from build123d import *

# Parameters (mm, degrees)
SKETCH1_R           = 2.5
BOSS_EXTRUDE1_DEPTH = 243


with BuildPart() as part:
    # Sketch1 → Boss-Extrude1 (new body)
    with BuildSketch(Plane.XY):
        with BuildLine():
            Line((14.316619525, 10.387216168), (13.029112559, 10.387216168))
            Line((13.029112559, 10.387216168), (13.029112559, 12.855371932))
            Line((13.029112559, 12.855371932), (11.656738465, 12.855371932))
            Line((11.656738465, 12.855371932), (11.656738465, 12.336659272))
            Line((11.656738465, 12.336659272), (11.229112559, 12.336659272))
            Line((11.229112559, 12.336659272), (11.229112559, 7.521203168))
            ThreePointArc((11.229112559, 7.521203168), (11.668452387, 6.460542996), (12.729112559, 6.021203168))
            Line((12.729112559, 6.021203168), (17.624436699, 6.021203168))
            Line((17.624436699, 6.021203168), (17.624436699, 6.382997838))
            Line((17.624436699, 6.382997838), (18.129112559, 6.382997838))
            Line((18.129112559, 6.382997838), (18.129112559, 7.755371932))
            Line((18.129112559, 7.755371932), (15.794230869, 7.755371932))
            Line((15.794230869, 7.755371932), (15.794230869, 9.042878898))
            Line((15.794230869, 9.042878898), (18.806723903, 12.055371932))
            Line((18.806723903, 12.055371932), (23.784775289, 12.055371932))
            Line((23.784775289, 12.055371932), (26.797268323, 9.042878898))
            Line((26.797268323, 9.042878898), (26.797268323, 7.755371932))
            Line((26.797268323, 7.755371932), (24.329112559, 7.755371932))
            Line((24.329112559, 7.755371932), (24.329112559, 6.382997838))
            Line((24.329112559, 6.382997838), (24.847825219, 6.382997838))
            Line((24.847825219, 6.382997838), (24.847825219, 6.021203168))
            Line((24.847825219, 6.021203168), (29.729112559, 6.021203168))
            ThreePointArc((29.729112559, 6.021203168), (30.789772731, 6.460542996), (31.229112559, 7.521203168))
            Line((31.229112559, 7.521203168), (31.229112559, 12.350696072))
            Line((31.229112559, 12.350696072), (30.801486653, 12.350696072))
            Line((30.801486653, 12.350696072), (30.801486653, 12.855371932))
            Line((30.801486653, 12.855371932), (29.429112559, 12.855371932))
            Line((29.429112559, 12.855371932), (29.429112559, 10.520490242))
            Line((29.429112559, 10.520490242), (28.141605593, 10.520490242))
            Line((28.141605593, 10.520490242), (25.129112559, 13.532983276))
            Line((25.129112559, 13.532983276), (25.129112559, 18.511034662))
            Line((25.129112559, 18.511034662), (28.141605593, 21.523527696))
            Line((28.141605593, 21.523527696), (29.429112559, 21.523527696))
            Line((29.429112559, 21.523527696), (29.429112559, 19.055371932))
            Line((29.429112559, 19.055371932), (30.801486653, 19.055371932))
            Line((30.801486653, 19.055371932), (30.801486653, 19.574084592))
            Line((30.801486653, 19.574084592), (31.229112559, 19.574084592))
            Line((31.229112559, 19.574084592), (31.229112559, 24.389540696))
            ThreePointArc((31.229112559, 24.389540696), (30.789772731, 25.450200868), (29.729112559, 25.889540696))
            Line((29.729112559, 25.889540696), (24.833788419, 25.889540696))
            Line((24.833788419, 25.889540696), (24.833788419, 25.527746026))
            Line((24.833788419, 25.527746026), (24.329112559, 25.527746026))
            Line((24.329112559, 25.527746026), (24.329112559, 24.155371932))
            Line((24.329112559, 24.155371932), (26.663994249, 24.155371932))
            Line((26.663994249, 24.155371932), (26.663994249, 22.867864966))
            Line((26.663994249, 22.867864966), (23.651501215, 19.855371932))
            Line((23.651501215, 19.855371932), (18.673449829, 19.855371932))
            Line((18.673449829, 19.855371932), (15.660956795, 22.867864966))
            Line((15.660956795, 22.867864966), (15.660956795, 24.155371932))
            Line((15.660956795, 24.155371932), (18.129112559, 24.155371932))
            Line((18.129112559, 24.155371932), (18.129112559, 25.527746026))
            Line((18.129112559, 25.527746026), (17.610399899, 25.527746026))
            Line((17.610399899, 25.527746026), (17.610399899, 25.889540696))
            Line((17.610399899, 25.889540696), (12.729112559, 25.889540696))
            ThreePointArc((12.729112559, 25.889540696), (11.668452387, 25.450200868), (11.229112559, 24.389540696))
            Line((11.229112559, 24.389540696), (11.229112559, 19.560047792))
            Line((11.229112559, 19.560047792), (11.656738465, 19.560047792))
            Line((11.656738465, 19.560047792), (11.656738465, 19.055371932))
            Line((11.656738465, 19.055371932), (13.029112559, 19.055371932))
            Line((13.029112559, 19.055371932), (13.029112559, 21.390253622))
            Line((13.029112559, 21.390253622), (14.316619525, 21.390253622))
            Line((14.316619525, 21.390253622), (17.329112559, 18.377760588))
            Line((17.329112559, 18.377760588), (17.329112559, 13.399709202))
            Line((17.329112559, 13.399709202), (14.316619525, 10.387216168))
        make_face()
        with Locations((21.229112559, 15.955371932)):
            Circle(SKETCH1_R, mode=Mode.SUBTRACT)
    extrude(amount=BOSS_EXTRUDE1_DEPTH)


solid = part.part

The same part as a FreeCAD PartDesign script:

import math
import FreeCAD as App
import Part
import Sketcher
from FreeCAD import Vector

doc = App.newDocument("Part")
params = doc.addObject("Spreadsheet::Sheet", "Params")
for row, (alias, value) in enumerate([
    ("sketch1_diameter", "5 mm"),
    ("sketch1_radius", "1.5 mm"),
    ("pad1_length", "243 mm"),
], start=1):
    params.set(f"A{row}", alias)
    params.set(f"B{row}", "=" + value)
    params.setAlias(f"B{row}", alias)

body = doc.addObject("PartDesign::Body", "Body")

sketch1 = body.newObject("Sketcher::SketchObject", "Sketch")
sketch1.AttachmentSupport = (doc.getObject("XY_Plane"), [""])
sketch1.MapMode = "FlatFace"
sketch1.addGeometry(Part.LineSegment(Vector(14.31662, 10.387216, 0), Vector(13.029113, 10.387216, 0)), False)
sketch1.addGeometry(Part.LineSegment(Vector(13.029113, 10.387216, 0), Vector(13.029113, 12.855372, 0)), False)
sketch1.addGeometry(Part.LineSegment(Vector(13.029113, 12.855372, 0), Vector(11.656738, 12.855372, 0)), False)
sketch1.addGeometry(Part.LineSegment(Vector(11.656738, 12.855372, 0), Vector(11.656738, 12.336659, 0)), False)
sketch1.addGeometry(Part.LineSegment(Vector(11.656738, 12.336659, 0), Vector(11.229113, 12.336659, 0)), False)
sketch1.addGeometry(Part.LineSegment(Vector(11.229113, 12.336659, 0), Vector(11.229113, 7.521203, 0)), False)
sketch1.addGeometry(Part.ArcOfCircle(Part.Circle(Vector(12.729113, 7.521203, 0), Vector(0, 0, 1), 1.5), math.radians(180), math.radians(270)), False)
sketch1.addGeometry(Part.LineSegment(Vector(12.729113, 6.021203, 0), Vector(17.624437, 6.021203, 0)), False)
sketch1.addGeometry(Part.LineSegment(Vector(17.624437, 6.021203, 0), Vector(17.624437, 6.382998, 0)), False)
sketch1.addGeometry(Part.LineSegment(Vector(17.624437, 6.382998, 0), Vector(18.129113, 6.382998, 0)), False)
sketch1.addGeometry(Part.LineSegment(Vector(18.129113, 6.382998, 0), Vector(18.129113, 7.755372, 0)), False)
sketch1.addGeometry(Part.LineSegment(Vector(18.129113, 7.755372, 0), Vector(15.794231, 7.755372, 0)), False)
sketch1.addGeometry(Part.LineSegment(Vector(15.794231, 7.755372, 0), Vector(15.794231, 9.042879, 0)), False)
sketch1.addGeometry(Part.LineSegment(Vector(15.794231, 9.042879, 0), Vector(18.806724, 12.055372, 0)), False)
sketch1.addGeometry(Part.LineSegment(Vector(18.806724, 12.055372, 0), Vector(23.784775, 12.055372, 0)), False)
sketch1.addGeometry(Part.LineSegment(Vector(23.784775, 12.055372, 0), Vector(26.797268, 9.042879, 0)), False)
sketch1.addGeometry(Part.LineSegment(Vector(26.797268, 9.042879, 0), Vector(26.797268, 7.755372, 0)), False)
sketch1.addGeometry(Part.LineSegment(Vector(26.797268, 7.755372, 0), Vector(24.329113, 7.755372, 0)), False)
sketch1.addGeometry(Part.LineSegment(Vector(24.329113, 7.755372, 0), Vector(24.329113, 6.382998, 0)), False)
sketch1.addGeometry(Part.LineSegment(Vector(24.329113, 6.382998, 0), Vector(24.847825, 6.382998, 0)), False)
sketch1.addGeometry(Part.LineSegment(Vector(24.847825, 6.382998, 0), Vector(24.847825, 6.021203, 0)), False)
sketch1.addGeometry(Part.LineSegment(Vector(24.847825, 6.021203, 0), Vector(29.729113, 6.021203, 0)), False)
sketch1.addGeometry(Part.ArcOfCircle(Part.Circle(Vector(29.729113, 7.521203, 0), Vector(0, 0, 1), 1.5), math.radians(-90), math.radians(0)), False)
sketch1.addGeometry(Part.LineSegment(Vector(31.229113, 7.521203, 0), Vector(31.229113, 12.350696, 0)), False)
sketch1.addGeometry(Part.LineSegment(Vector(31.229113, 12.350696, 0), Vector(30.801487, 12.350696, 0)), False)
sketch1.addGeometry(Part.LineSegment(Vector(30.801487, 12.350696, 0), Vector(30.801487, 12.855372, 0)), False)
sketch1.addGeometry(Part.LineSegment(Vector(30.801487, 12.855372, 0), Vector(29.429113, 12.855372, 0)), False)
sketch1.addGeometry(Part.LineSegment(Vector(29.429113, 12.855372, 0), Vector(29.429113, 10.52049, 0)), False)
sketch1.addGeometry(Part.LineSegment(Vector(29.429113, 10.52049, 0), Vector(28.141606, 10.52049, 0)), False)
sketch1.addGeometry(Part.LineSegment(Vector(28.141606, 10.52049, 0), Vector(25.129113, 13.532983, 0)), False)
sketch1.addGeometry(Part.LineSegment(Vector(25.129113, 13.532983, 0), Vector(25.129113, 18.511035, 0)), False)
sketch1.addGeometry(Part.LineSegment(Vector(25.129113, 18.511035, 0), Vector(28.141606, 21.523528, 0)), False)
sketch1.addGeometry(Part.LineSegment(Vector(28.141606, 21.523528, 0), Vector(29.429113, 21.523528, 0)), False)
sketch1.addGeometry(Part.LineSegment(Vector(29.429113, 21.523528, 0), Vector(29.429113, 19.055372, 0)), False)
sketch1.addGeometry(Part.LineSegment(Vector(29.429113, 19.055372, 0), Vector(30.801487, 19.055372, 0)), False)
sketch1.addGeometry(Part.LineSegment(Vector(30.801487, 19.055372, 0), Vector(30.801487, 19.574085, 0)), False)
sketch1.addGeometry(Part.LineSegment(Vector(30.801487, 19.574085, 0), Vector(31.229113, 19.574085, 0)), False)
sketch1.addGeometry(Part.LineSegment(Vector(31.229113, 19.574085, 0), Vector(31.229113, 24.389541, 0)), False)
sketch1.addGeometry(Part.ArcOfCircle(Part.Circle(Vector(29.729113, 24.389541, 0), Vector(0, 0, 1), 1.5), math.radians(0), math.radians(90)), False)
sketch1.addGeometry(Part.LineSegment(Vector(29.729113, 25.889541, 0), Vector(24.833788, 25.889541, 0)), False)
sketch1.addGeometry(Part.LineSegment(Vector(24.833788, 25.889541, 0), Vector(24.833788, 25.527746, 0)), False)
sketch1.addGeometry(Part.LineSegment(Vector(24.833788, 25.527746, 0), Vector(24.329113, 25.527746, 0)), False)
sketch1.addGeometry(Part.LineSegment(Vector(24.329113, 25.527746, 0), Vector(24.329113, 24.155372, 0)), False)
sketch1.addGeometry(Part.LineSegment(Vector(24.329113, 24.155372, 0), Vector(26.663994, 24.155372, 0)), False)
sketch1.addGeometry(Part.LineSegment(Vector(26.663994, 24.155372, 0), Vector(26.663994, 22.867865, 0)), False)
sketch1.addGeometry(Part.LineSegment(Vector(26.663994, 22.867865, 0), Vector(23.651501, 19.855372, 0)), False)
sketch1.addGeometry(Part.LineSegment(Vector(23.651501, 19.855372, 0), Vector(18.67345, 19.855372, 0)), False)
sketch1.addGeometry(Part.LineSegment(Vector(18.67345, 19.855372, 0), Vector(15.660957, 22.867865, 0)), False)
sketch1.addGeometry(Part.LineSegment(Vector(15.660957, 22.867865, 0), Vector(15.660957, 24.155372, 0)), False)
sketch1.addGeometry(Part.LineSegment(Vector(15.660957, 24.155372, 0), Vector(18.129113, 24.155372, 0)), False)
sketch1.addGeometry(Part.LineSegment(Vector(18.129113, 24.155372, 0), Vector(18.129113, 25.527746, 0)), False)
sketch1.addGeometry(Part.LineSegment(Vector(18.129113, 25.527746, 0), Vector(17.6104, 25.527746, 0)), False)
sketch1.addGeometry(Part.LineSegment(Vector(17.6104, 25.527746, 0), Vector(17.6104, 25.889541, 0)), False)
sketch1.addGeometry(Part.LineSegment(Vector(17.6104, 25.889541, 0), Vector(12.729113, 25.889541, 0)), False)
sketch1.addGeometry(Part.ArcOfCircle(Part.Circle(Vector(12.729113, 24.389541, 0), Vector(0, 0, 1), 1.5), math.radians(90), math.radians(180)), False)
sketch1.addGeometry(Part.LineSegment(Vector(11.229113, 24.389541, 0), Vector(11.229113, 19.560048, 0)), False)
sketch1.addGeometry(Part.LineSegment(Vector(11.229113, 19.560048, 0), Vector(11.656738, 19.560048, 0)), False)
sketch1.addGeometry(Part.LineSegment(Vector(11.656738, 19.560048, 0), Vector(11.656738, 19.055372, 0)), False)
sketch1.addGeometry(Part.LineSegment(Vector(11.656738, 19.055372, 0), Vector(13.029113, 19.055372, 0)), False)
sketch1.addGeometry(Part.LineSegment(Vector(13.029113, 19.055372, 0), Vector(13.029113, 21.390254, 0)), False)
sketch1.addGeometry(Part.LineSegment(Vector(13.029113, 21.390254, 0), Vector(14.31662, 21.390254, 0)), False)
sketch1.addGeometry(Part.LineSegment(Vector(14.31662, 21.390254, 0), Vector(17.329113, 18.377761, 0)), False)
sketch1.addGeometry(Part.LineSegment(Vector(17.329113, 18.377761, 0), Vector(17.329113, 13.399709, 0)), False)
sketch1.addGeometry(Part.LineSegment(Vector(17.329113, 13.399709, 0), Vector(14.31662, 10.387216, 0)), False)
sketch1.addGeometry(Part.Circle(Vector(21.229113, 15.955372, 0), Vector(0, 0, 1), 2.5), False)
sketch1.addConstraint(Sketcher.Constraint("Coincident", 0, 2, 1, 1))
sketch1.addConstraint(Sketcher.Constraint("Coincident", 1, 2, 2, 1))
sketch1.addConstraint(Sketcher.Constraint("Coincident", 2, 2, 3, 1))
sketch1.addConstraint(Sketcher.Constraint("Coincident", 3, 2, 4, 1))
sketch1.addConstraint(Sketcher.Constraint("Coincident", 4, 2, 5, 1))
sketch1.addConstraint(Sketcher.Constraint("Tangent", 5, 2, 6, 1))
sketch1.addConstraint(Sketcher.Constraint("Tangent", 6, 2, 7, 1))
sketch1.addConstraint(Sketcher.Constraint("Coincident", 7, 2, 8, 1))
sketch1.addConstraint(Sketcher.Constraint("Coincident", 8, 2, 9, 1))
sketch1.addConstraint(Sketcher.Constraint("Coincident", 9, 2, 10, 1))
sketch1.addConstraint(Sketcher.Constraint("Coincident", 10, 2, 11, 1))
sketch1.addConstraint(Sketcher.Constraint("Coincident", 11, 2, 12, 1))
sketch1.addConstraint(Sketcher.Constraint("Coincident", 12, 2, 13, 1))
sketch1.addConstraint(Sketcher.Constraint("Coincident", 13, 2, 14, 1))
sketch1.addConstraint(Sketcher.Constraint("Coincident", 14, 2, 15, 1))
sketch1.addConstraint(Sketcher.Constraint("Coincident", 15, 2, 16, 1))
sketch1.addConstraint(Sketcher.Constraint("Coincident", 16, 2, 17, 1))
sketch1.addConstraint(Sketcher.Constraint("Coincident", 17, 2, 18, 1))
sketch1.addConstraint(Sketcher.Constraint("Coincident", 18, 2, 19, 1))
sketch1.addConstraint(Sketcher.Constraint("Coincident", 19, 2, 20, 1))
sketch1.addConstraint(Sketcher.Constraint("Coincident", 20, 2, 21, 1))
sketch1.addConstraint(Sketcher.Constraint("Tangent", 21, 2, 22, 1))
sketch1.addConstraint(Sketcher.Constraint("Tangent", 22, 2, 23, 1))
sketch1.addConstraint(Sketcher.Constraint("Coincident", 23, 2, 24, 1))
sketch1.addConstraint(Sketcher.Constraint("Coincident", 24, 2, 25, 1))
sketch1.addConstraint(Sketcher.Constraint("Coincident", 25, 2, 26, 1))
sketch1.addConstraint(Sketcher.Constraint("Coincident", 26, 2, 27, 1))
sketch1.addConstraint(Sketcher.Constraint("Coincident", 27, 2, 28, 1))
sketch1.addConstraint(Sketcher.Constraint("Coincident", 28, 2, 29, 1))
sketch1.addConstraint(Sketcher.Constraint("Coincident", 29, 2, 30, 1))
sketch1.addConstraint(Sketcher.Constraint("Coincident", 30, 2, 31, 1))
sketch1.addConstraint(Sketcher.Constraint("Coincident", 31, 2, 32, 1))
sketch1.addConstraint(Sketcher.Constraint("Coincident", 32, 2, 33, 1))
sketch1.addConstraint(Sketcher.Constraint("Coincident", 33, 2, 34, 1))
sketch1.addConstraint(Sketcher.Constraint("Coincident", 34, 2, 35, 1))
sketch1.addConstraint(Sketcher.Constraint("Coincident", 35, 2, 36, 1))
sketch1.addConstraint(Sketcher.Constraint("Coincident", 36, 2, 37, 1))
sketch1.addConstraint(Sketcher.Constraint("Tangent", 37, 2, 38, 1))
sketch1.addConstraint(Sketcher.Constraint("Tangent", 38, 2, 39, 1))
sketch1.addConstraint(Sketcher.Constraint("Coincident", 39, 2, 40, 1))
sketch1.addConstraint(Sketcher.Constraint("Coincident", 40, 2, 41, 1))
sketch1.addConstraint(Sketcher.Constraint("Coincident", 41, 2, 42, 1))
sketch1.addConstraint(Sketcher.Constraint("Coincident", 42, 2, 43, 1))
sketch1.addConstraint(Sketcher.Constraint("Coincident", 43, 2, 44, 1))
sketch1.addConstraint(Sketcher.Constraint("Coincident", 44, 2, 45, 1))
sketch1.addConstraint(Sketcher.Constraint("Coincident", 45, 2, 46, 1))
sketch1.addConstraint(Sketcher.Constraint("Coincident", 46, 2, 47, 1))
sketch1.addConstraint(Sketcher.Constraint("Coincident", 47, 2, 48, 1))
sketch1.addConstraint(Sketcher.Constraint("Coincident", 48, 2, 49, 1))
sketch1.addConstraint(Sketcher.Constraint("Coincident", 49, 2, 50, 1))
sketch1.addConstraint(Sketcher.Constraint("Coincident", 50, 2, 51, 1))
sketch1.addConstraint(Sketcher.Constraint("Coincident", 51, 2, 52, 1))
sketch1.addConstraint(Sketcher.Constraint("Coincident", 52, 2, 53, 1))
sketch1.addConstraint(Sketcher.Constraint("Tangent", 53, 2, 54, 1))
sketch1.addConstraint(Sketcher.Constraint("Tangent", 54, 2, 55, 1))
sketch1.addConstraint(Sketcher.Constraint("Coincident", 55, 2, 56, 1))
sketch1.addConstraint(Sketcher.Constraint("Coincident", 56, 2, 57, 1))
sketch1.addConstraint(Sketcher.Constraint("Coincident", 57, 2, 58, 1))
sketch1.addConstraint(Sketcher.Constraint("Coincident", 58, 2, 59, 1))
sketch1.addConstraint(Sketcher.Constraint("Coincident", 59, 2, 60, 1))
sketch1.addConstraint(Sketcher.Constraint("Coincident", 60, 2, 61, 1))
sketch1.addConstraint(Sketcher.Constraint("Coincident", 61, 2, 62, 1))
sketch1.addConstraint(Sketcher.Constraint("Coincident", 62, 2, 63, 1))
sketch1.addConstraint(Sketcher.Constraint("Coincident", 63, 2, 0, 1))
sketch1.addConstraint(Sketcher.Constraint("Horizontal", 0))
sketch1.addConstraint(Sketcher.Constraint("Vertical", 1))
sketch1.addConstraint(Sketcher.Constraint("Horizontal", 2))
sketch1.addConstraint(Sketcher.Constraint("Vertical", 3))
sketch1.addConstraint(Sketcher.Constraint("Horizontal", 4))
sketch1.addConstraint(Sketcher.Constraint("Vertical", 5))
sketch1.addConstraint(Sketcher.Constraint("Horizontal", 7))
sketch1.addConstraint(Sketcher.Constraint("Vertical", 8))
sketch1.addConstraint(Sketcher.Constraint("Horizontal", 9))
sketch1.addConstraint(Sketcher.Constraint("Vertical", 10))
sketch1.addConstraint(Sketcher.Constraint("Horizontal", 11))
sketch1.addConstraint(Sketcher.Constraint("Vertical", 12))
sketch1.addConstraint(Sketcher.Constraint("Horizontal", 14))
sketch1.addConstraint(Sketcher.Constraint("Vertical", 16))
sketch1.addConstraint(Sketcher.Constraint("Horizontal", 17))
sketch1.addConstraint(Sketcher.Constraint("Vertical", 18))
sketch1.addConstraint(Sketcher.Constraint("Horizontal", 19))
sketch1.addConstraint(Sketcher.Constraint("Vertical", 20))
sketch1.addConstraint(Sketcher.Constraint("Horizontal", 21))
sketch1.addConstraint(Sketcher.Constraint("Vertical", 23))
sketch1.addConstraint(Sketcher.Constraint("Horizontal", 24))
sketch1.addConstraint(Sketcher.Constraint("Vertical", 25))
sketch1.addConstraint(Sketcher.Constraint("Horizontal", 26))
sketch1.addConstraint(Sketcher.Constraint("Vertical", 27))
sketch1.addConstraint(Sketcher.Constraint("Horizontal", 28))
sketch1.addConstraint(Sketcher.Constraint("Vertical", 30))
sketch1.addConstraint(Sketcher.Constraint("Horizontal", 32))
sketch1.addConstraint(Sketcher.Constraint("Vertical", 33))
sketch1.addConstraint(Sketcher.Constraint("Horizontal", 34))
sketch1.addConstraint(Sketcher.Constraint("Vertical", 35))
sketch1.addConstraint(Sketcher.Constraint("Horizontal", 36))
sketch1.addConstraint(Sketcher.Constraint("Vertical", 37))
sketch1.addConstraint(Sketcher.Constraint("Horizontal", 39))
sketch1.addConstraint(Sketcher.Constraint("Vertical", 40))
sketch1.addConstraint(Sketcher.Constraint("Horizontal", 41))
sketch1.addConstraint(Sketcher.Constraint("Vertical", 42))
sketch1.addConstraint(Sketcher.Constraint("Horizontal", 43))
sketch1.addConstraint(Sketcher.Constraint("Vertical", 44))
sketch1.addConstraint(Sketcher.Constraint("Horizontal", 46))
sketch1.addConstraint(Sketcher.Constraint("Vertical", 48))
sketch1.addConstraint(Sketcher.Constraint("Horizontal", 49))
sketch1.addConstraint(Sketcher.Constraint("Vertical", 50))
sketch1.addConstraint(Sketcher.Constraint("Horizontal", 51))
sketch1.addConstraint(Sketcher.Constraint("Vertical", 52))
sketch1.addConstraint(Sketcher.Constraint("Horizontal", 53))
sketch1.addConstraint(Sketcher.Constraint("Vertical", 55))
sketch1.addConstraint(Sketcher.Constraint("Horizontal", 56))
sketch1.addConstraint(Sketcher.Constraint("Vertical", 57))
sketch1.addConstraint(Sketcher.Constraint("Horizontal", 58))
sketch1.addConstraint(Sketcher.Constraint("Vertical", 59))
sketch1.addConstraint(Sketcher.Constraint("Horizontal", 60))
sketch1.addConstraint(Sketcher.Constraint("Vertical", 62))
sketch1.addConstraint(Sketcher.Constraint("Equal", 6, 22))
sketch1.addConstraint(Sketcher.Constraint("Equal", 22, 38))
sketch1.addConstraint(Sketcher.Constraint("Equal", 38, 54))
sketch1.addConstraint(Sketcher.Constraint("Perpendicular", 13, 15))
sketch1.addConstraint(Sketcher.Constraint("Parallel", 15, 29))
sketch1.addConstraint(Sketcher.Constraint("Perpendicular", 29, 31))
sketch1.addConstraint(Sketcher.Constraint("Parallel", 31, 45))
sketch1.addConstraint(Sketcher.Constraint("Perpendicular", 45, 47))
sketch1.addConstraint(Sketcher.Constraint("Parallel", 47, 61))
sketch1.addConstraint(Sketcher.Constraint("Perpendicular", 61, 63))
sketch1.addConstraint(Sketcher.Constraint("Horizontal", 6, 3, 22, 3))
sketch1.addConstraint(Sketcher.Constraint("Horizontal", 38, 3, 54, 3))
sketch1.addConstraint(Sketcher.Constraint("Horizontal", 12, 2, 15, 2))
sketch1.addConstraint(Sketcher.Constraint("Horizontal", 11, 2, 16, 2))
sketch1.addConstraint(Sketcher.Constraint("Horizontal", 9, 2, 18, 2))
sketch1.addConstraint(Sketcher.Constraint("Horizontal", 2, 2, 25, 2))
sketch1.addConstraint(Sketcher.Constraint("Horizontal", 44, 2, 47, 2))
sketch1.addConstraint(Sketcher.Constraint("Horizontal", 43, 2, 48, 2))
sketch1.addConstraint(Sketcher.Constraint("Horizontal", 41, 2, 50, 2))
sketch1.addConstraint(Sketcher.Constraint("Horizontal", 34, 2, 57, 2))
sketch1.addConstraint(Sketcher.Constraint("Vertical", 22, 3, 38, 3))
sketch1.addConstraint(Sketcher.Constraint("Vertical", 6, 3, 54, 3))
sketch1.addConstraint(Sketcher.Constraint("Vertical", 28, 2, 31, 2))
sketch1.addConstraint(Sketcher.Constraint("Vertical", 27, 2, 32, 2))
sketch1.addConstraint(Sketcher.Constraint("Vertical", 25, 2, 34, 2))
sketch1.addConstraint(Sketcher.Constraint("Vertical", 18, 2, 41, 2))
sketch1.addConstraint(Sketcher.Constraint("Vertical", 10, 2, 49, 2))
sketch1.addConstraint(Sketcher.Constraint("Vertical", 3, 2, 56, 2))
sketch1.addConstraint(Sketcher.Constraint("Vertical", 1, 2, 58, 2))
sketch1.addConstraint(Sketcher.Constraint("Vertical", 60, 2, 63, 2))
sketch1.addConstraint(Sketcher.Constraint("Equal", 4, 24))
sketch1.addConstraint(Sketcher.Constraint("Equal", 2, 26))
sketch1.addConstraint(Sketcher.Constraint("Equal", 0, 28))
sketch1.addConstraint(Sketcher.Constraint("Equal", 7, 39))
sketch1.addConstraint(Sketcher.Constraint("Equal", 9, 41))
sketch1.addConstraint(Sketcher.Constraint("Equal", 11, 43))
sketch1.addConstraint(Sketcher.Constraint("Equal", 14, 46))
sketch1.addConstraint(Sketcher.Constraint("Equal", 17, 49))
sketch1.addConstraint(Sketcher.Constraint("Equal", 19, 51))
sketch1.addConstraint(Sketcher.Constraint("Equal", 49, 1))
sketch1.addConstraint(Sketcher.Constraint("Equal", 51, 3))
sketch1.addConstraint(Sketcher.Constraint("Equal", 58, 10))
sketch1.addConstraint(Sketcher.Constraint("Equal", 60, 12))
sketch1.addConstraint(Sketcher.Constraint("Equal", 41, 25))
sketch1.addConstraint(Sketcher.Constraint("Equal", 43, 27))
sketch1.addConstraint(Sketcher.Constraint("Equal", 46, 30))
sketch1.addConstraint(Sketcher.Constraint("Equal", 1, 33))
sketch1.addConstraint(Sketcher.Constraint("Equal", 3, 35))
sketch1.addConstraint(Sketcher.Constraint("Equal", 5, 37))
sketch1.addConstraint(Sketcher.Constraint("Equal", 20, 40))
sketch1.addConstraint(Sketcher.Constraint("Equal", 18, 42))
sketch1.addConstraint(Sketcher.Constraint("Equal", 16, 44))
sketch1.addConstraint(Sketcher.Constraint("Equal", 23, 55))
sketch1.addConstraint(Sketcher.Constraint("Equal", 27, 59))
sketch1.addConstraint(Sketcher.Constraint("Equal", 30, 62))
sketch1.addConstraint(Sketcher.Constraint("Equal", 13, 15))
sketch1.addConstraint(Sketcher.Constraint("Equal", 15, 29))
sketch1.addConstraint(Sketcher.Constraint("Diameter", 64, 5.0))
sketch1.addConstraint(Sketcher.Constraint("Radius", 6, 1.5))
sketch1.addConstraint(Sketcher.Constraint("DistanceX", 11, 2, 11, 1, 2.334882))
sketch1.addConstraint(Sketcher.Constraint("DistanceX", 14, 1, 14, 2, 4.978051))
sketch1.addConstraint(Sketcher.Constraint("DistanceX", -1, 1, 45, 2, 23.651501))
sketch1.addConstraint(Sketcher.Constraint("DistanceX", -1, 1, 51, 2, 17.6104))
sketch1.addConstraint(Sketcher.Constraint("Distance", 13, 4.260309))
sketch1.addConstraint(Sketcher.Constraint("DistanceX", 0, 2, 0, 1, 1.287507))
sketch1.addConstraint(Sketcher.Constraint("DistanceX", 2, 2, 2, 1, 1.372374))
sketch1.addConstraint(Sketcher.Constraint("DistanceX", 4, 2, 4, 1, 0.427626))
sketch1.addConstraint(Sketcher.Constraint("DistanceX", 7, 1, 7, 2, 4.895324))
sketch1.addConstraint(Sketcher.Constraint("DistanceX", 9, 1, 9, 2, 0.504676))
sketch1.addConstraint(Sketcher.Constraint("DistanceX", 17, 2, 17, 1, 2.468156))
sketch1.addConstraint(Sketcher.Constraint("DistanceY", 5, 2, 5, 1, 4.815456))
sketch1.addConstraint(Sketcher.Constraint("DistanceY", 8, 1, 8, 2, 0.361795))
sketch1.addConstraint(Sketcher.Constraint("DistanceY", -1, 1, 38, 3, 24.389541))
sketch1.addConstraint(Sketcher.Constraint("DistanceY", -1, 1, 64, 3, 15.955372))
sketch1.addConstraint(Sketcher.Constraint("DistanceX", -1, 1, 64, 3, 21.229113))
sketch1.setExpression("Constraints[173]", "Params.sketch1_diameter")
sketch1.setExpression("Constraints[174]", "Params.sketch1_radius")
pad1 = body.newObject("PartDesign::Pad", "Pad")
pad1.Profile = sketch1
pad1.setExpression("Length", "Params.pad1_length")

doc.recompute()
